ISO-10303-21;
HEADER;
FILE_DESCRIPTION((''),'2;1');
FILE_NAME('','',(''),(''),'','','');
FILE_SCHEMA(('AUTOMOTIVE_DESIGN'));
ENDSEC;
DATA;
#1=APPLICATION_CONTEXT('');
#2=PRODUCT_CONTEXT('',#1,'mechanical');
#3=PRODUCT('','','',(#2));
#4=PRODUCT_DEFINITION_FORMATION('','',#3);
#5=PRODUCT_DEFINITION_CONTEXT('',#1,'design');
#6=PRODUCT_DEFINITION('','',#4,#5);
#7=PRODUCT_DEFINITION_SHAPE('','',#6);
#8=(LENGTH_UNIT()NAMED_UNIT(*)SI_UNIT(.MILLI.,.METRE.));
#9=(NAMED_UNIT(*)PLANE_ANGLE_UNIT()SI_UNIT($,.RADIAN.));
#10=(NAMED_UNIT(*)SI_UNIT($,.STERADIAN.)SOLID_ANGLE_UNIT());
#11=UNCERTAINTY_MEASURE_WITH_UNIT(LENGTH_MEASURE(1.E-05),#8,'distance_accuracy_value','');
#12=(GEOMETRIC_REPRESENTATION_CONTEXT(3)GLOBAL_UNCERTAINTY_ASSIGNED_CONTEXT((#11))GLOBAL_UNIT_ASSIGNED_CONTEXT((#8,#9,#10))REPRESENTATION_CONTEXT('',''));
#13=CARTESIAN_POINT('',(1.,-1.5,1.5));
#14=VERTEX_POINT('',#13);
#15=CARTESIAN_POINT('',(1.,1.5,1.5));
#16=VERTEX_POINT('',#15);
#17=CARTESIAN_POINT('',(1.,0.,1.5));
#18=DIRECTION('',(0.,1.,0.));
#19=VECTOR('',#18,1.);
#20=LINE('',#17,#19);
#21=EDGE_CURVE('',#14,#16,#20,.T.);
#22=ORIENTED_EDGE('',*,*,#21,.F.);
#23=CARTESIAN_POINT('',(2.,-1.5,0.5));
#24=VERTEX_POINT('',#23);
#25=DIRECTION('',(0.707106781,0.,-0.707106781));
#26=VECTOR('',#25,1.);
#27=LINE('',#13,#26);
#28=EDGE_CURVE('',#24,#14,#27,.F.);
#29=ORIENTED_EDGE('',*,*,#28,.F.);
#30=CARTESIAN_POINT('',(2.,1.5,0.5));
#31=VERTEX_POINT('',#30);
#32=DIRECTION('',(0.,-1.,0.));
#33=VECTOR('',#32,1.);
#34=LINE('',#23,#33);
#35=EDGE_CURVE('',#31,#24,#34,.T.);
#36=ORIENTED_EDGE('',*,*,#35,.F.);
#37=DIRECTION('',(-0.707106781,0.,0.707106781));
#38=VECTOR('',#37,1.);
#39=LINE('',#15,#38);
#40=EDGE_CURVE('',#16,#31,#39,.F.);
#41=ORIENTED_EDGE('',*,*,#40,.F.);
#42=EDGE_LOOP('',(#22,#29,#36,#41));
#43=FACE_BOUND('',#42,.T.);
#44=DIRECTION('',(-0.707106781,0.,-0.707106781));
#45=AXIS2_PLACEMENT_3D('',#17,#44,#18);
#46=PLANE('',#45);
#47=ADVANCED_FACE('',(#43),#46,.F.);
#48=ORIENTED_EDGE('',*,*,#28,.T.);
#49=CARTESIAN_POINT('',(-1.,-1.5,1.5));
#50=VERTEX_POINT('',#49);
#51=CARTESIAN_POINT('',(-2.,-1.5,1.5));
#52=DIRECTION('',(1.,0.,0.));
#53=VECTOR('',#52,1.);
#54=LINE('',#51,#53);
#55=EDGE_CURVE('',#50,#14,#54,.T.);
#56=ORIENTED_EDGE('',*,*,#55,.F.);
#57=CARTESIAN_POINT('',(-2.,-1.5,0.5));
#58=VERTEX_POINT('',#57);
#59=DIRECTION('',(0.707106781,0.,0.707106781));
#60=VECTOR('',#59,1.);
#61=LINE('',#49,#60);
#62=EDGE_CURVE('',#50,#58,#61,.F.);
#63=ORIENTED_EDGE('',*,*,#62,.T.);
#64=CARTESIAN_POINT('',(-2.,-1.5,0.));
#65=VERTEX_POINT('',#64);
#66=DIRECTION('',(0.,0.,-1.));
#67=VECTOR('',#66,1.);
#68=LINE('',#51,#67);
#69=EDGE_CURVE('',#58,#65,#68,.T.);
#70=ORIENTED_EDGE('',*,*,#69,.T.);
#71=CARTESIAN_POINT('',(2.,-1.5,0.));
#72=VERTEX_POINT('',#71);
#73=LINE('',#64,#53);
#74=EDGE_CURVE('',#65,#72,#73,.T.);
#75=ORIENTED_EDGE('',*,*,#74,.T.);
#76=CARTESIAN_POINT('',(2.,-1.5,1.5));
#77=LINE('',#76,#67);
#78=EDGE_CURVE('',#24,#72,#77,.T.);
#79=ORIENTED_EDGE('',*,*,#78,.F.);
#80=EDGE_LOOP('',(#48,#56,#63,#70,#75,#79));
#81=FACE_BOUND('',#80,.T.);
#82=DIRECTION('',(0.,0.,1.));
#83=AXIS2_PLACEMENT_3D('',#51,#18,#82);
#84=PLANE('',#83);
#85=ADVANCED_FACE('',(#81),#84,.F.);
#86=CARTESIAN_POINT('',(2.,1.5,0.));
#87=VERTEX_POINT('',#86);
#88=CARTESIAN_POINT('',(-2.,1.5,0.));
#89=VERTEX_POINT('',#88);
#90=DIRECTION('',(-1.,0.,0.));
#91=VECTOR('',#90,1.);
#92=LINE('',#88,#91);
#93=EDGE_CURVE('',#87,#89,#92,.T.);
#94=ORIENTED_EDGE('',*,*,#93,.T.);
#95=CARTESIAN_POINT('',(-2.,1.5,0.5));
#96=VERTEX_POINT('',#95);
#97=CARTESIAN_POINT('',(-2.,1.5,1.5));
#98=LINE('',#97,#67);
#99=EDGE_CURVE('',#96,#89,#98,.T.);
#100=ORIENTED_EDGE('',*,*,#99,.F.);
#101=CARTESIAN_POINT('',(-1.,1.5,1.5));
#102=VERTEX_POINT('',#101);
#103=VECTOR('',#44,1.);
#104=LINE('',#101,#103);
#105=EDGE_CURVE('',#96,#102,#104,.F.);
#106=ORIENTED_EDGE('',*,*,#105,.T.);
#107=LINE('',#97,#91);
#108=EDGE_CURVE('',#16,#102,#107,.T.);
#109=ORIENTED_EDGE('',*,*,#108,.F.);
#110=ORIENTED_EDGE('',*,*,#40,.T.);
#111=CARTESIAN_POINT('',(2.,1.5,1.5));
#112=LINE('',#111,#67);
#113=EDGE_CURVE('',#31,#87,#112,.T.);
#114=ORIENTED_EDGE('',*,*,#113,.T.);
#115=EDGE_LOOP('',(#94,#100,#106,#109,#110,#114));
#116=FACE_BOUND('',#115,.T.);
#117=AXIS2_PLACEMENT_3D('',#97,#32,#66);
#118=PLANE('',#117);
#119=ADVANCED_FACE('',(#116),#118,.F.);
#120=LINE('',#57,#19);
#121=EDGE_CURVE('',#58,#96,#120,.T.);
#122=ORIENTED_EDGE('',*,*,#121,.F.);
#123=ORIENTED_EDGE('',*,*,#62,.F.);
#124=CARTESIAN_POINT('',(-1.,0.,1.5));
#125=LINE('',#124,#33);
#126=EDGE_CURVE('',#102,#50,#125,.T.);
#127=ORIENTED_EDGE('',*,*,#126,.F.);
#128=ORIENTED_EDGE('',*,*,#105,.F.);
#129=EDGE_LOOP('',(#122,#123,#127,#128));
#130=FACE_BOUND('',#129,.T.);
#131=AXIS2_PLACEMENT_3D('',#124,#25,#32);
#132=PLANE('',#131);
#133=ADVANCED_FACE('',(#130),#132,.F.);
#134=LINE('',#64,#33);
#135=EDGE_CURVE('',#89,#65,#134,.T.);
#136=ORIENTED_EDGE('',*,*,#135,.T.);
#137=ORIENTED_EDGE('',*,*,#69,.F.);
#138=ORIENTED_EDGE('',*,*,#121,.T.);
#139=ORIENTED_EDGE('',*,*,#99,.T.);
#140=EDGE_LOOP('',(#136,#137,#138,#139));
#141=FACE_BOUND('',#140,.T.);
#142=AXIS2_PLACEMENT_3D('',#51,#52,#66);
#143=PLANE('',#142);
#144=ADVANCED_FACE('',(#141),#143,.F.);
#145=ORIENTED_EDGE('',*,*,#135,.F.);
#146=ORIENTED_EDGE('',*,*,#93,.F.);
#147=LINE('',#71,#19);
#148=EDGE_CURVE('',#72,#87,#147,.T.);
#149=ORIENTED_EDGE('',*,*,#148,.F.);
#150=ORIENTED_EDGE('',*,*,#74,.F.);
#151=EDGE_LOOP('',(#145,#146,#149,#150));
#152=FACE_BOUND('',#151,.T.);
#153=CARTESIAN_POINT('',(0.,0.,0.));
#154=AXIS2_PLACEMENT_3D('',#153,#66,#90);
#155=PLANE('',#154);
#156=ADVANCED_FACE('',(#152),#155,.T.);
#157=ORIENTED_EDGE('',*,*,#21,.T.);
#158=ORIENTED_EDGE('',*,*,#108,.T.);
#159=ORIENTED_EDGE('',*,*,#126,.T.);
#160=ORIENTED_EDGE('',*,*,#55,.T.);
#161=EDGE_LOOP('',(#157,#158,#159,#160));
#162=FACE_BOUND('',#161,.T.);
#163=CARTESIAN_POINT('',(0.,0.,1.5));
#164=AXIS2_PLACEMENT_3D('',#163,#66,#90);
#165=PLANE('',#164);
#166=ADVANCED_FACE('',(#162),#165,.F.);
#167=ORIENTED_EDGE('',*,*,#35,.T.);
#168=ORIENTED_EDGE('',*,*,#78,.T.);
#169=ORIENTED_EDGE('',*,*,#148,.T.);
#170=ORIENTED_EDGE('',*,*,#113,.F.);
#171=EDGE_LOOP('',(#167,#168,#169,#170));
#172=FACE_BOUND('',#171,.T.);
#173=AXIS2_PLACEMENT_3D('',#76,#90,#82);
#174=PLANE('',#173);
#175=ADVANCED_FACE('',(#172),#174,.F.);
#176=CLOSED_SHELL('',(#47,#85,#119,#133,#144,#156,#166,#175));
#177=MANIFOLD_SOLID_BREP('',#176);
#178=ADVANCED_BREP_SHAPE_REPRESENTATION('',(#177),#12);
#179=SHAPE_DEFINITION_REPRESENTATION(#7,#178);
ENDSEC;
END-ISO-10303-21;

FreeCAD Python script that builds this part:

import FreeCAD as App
import Part
import Sketcher

V = App.Vector
Q = App.Units.Quantity


def edges_at(feature, points):
    """Names of the edges that pass closest to the given points."""
    edges = feature.Shape.Edges
    near = lambda p: min(range(len(edges)), key=lambda i: edges[i].distToShape(Part.Vertex(*p))[0])
    return sorted({f"Edge{near(p) + 1}" for p in points})


def add_polygon(sketch, points):
    """Adds a closed chain of lines whose ends are joined by coincident constraints."""
    first, n = sketch.GeometryCount, len(points)
    for a, b in zip(points, points[1:] + points[:1]):
        sketch.addGeometry(Part.LineSegment(App.Vector(*a, 0), App.Vector(*b, 0)), False)
    for i in range(n):
        sketch.addConstraint(Sketcher.Constraint("Coincident", first + i, 2, first + (i + 1) % n, 1))

doc = App.newDocument("Part")
body = doc.addObject("PartDesign::Body", "Body")

# Sketch on XY plane
sketch1 = body.newObject("Sketcher::SketchObject", "Sketch")
sketch1.AttachmentSupport = (doc.getObject("XY_Plane"), [""])
sketch1.MapMode = "FlatFace"
add_polygon(sketch1, [(-2, 1.5), (-2, -1.5), (2, -1.5), (2, 1.5)])  # lines 0-3
sketch1.addConstraint([
    Sketcher.Constraint("Vertical", 0),
    Sketcher.Constraint("Horizontal", 1),
    Sketcher.Constraint("Vertical", 2),
    Sketcher.Constraint("Horizontal", 3),
    Sketcher.Constraint("Symmetric", 0, 2, 2, 2, -1, 1),
    Sketcher.Constraint("DistanceX", 1, 1, 1, 2, Q("4 mm")),
    Sketcher.Constraint("DistanceY", 0, 2, 0, 1, Q("3 mm")),
])
pad1 = body.newObject("PartDesign::Pad", "Pad")
pad1.Profile = sketch1
pad1.Length = 1.5
doc.recompute()

chamfer = body.newObject("PartDesign::Chamfer", "Chamfer")
chamfer.Base = (pad1, edges_at(pad1, [(-2, 0, 1.5), (2, 0, 1.5)]))
chamfer.Size = 1

doc.recompute()
